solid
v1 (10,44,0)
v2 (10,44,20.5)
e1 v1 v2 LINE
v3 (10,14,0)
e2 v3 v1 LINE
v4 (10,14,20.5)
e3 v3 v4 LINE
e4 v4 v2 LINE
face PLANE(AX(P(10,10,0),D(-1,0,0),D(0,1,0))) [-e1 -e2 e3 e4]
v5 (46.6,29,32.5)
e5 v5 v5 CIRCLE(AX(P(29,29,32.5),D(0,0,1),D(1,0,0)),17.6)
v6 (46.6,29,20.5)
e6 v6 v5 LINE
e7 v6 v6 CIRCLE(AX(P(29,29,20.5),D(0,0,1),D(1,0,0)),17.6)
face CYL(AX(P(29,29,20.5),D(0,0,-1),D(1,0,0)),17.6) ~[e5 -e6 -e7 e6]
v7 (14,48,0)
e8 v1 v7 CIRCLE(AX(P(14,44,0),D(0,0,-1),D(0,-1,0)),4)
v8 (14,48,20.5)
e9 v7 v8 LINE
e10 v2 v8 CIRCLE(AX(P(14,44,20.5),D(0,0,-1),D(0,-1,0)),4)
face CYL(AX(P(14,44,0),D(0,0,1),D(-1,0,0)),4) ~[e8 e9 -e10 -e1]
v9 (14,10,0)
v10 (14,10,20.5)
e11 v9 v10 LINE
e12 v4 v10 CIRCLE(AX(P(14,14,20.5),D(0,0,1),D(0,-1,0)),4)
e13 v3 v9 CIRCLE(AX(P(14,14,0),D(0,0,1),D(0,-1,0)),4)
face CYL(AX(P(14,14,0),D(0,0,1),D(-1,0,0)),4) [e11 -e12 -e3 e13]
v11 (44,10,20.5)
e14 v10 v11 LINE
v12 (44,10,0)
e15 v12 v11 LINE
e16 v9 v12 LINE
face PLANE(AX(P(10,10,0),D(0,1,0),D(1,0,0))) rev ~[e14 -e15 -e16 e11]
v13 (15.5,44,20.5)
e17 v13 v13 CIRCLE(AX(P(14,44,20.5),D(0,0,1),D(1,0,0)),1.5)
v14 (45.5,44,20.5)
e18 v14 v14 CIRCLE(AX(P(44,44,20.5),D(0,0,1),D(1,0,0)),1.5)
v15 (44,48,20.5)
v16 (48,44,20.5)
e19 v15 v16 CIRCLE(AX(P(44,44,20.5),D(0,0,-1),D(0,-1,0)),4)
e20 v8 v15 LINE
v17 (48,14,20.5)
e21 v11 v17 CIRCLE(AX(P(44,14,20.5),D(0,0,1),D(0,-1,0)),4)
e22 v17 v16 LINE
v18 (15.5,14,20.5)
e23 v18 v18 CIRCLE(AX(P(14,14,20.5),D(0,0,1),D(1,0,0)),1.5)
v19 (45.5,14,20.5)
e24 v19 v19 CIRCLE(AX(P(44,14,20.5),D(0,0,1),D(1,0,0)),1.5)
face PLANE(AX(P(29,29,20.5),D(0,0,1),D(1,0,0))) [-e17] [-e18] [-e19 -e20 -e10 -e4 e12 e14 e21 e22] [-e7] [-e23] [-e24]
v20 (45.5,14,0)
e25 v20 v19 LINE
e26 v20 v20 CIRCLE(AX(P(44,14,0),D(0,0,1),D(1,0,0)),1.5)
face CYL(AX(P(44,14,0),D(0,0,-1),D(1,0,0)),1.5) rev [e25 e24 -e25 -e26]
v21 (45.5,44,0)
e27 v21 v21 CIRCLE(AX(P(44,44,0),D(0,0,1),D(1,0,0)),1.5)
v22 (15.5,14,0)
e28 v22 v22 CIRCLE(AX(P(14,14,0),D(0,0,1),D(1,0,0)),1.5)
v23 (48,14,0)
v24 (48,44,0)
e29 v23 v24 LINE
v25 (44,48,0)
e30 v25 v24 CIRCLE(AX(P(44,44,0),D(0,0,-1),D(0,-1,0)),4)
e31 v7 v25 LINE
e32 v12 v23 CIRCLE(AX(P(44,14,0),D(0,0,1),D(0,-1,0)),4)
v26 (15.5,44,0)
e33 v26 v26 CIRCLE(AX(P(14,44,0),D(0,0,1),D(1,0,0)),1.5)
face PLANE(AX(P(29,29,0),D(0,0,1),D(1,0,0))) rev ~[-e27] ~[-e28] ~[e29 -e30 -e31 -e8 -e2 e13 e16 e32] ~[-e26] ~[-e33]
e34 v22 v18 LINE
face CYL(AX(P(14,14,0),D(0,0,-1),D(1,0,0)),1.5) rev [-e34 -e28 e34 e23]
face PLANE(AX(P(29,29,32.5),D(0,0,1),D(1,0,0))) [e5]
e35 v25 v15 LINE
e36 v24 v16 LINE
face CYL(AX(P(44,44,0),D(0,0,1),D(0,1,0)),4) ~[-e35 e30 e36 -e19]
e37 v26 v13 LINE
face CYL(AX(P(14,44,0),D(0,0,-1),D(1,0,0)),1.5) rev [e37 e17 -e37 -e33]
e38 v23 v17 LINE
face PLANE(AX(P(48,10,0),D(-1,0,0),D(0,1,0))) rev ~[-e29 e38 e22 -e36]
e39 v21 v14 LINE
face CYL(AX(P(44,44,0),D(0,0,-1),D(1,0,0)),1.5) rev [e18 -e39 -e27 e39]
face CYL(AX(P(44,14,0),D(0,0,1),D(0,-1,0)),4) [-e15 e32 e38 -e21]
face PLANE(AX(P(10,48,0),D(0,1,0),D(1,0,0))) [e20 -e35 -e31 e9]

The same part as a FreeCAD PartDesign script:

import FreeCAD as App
import Part
import Sketcher
from FreeCAD import Vector
Q = App.Units.Quantity


def edges_at(feature, points):
    """Names of the edges that pass closest to the given points."""
    edges = feature.Shape.Edges
    near = lambda p: min(range(len(edges)), key=lambda i: edges[i].distToShape(Part.Vertex(*p))[0])
    return sorted({f"Edge{near(p) + 1}" for p in points})

doc = App.newDocument("Part")
body = doc.addObject("PartDesign::Body", "Body")

# Sketch on XY plane
sketch1 = body.newObject("Sketcher::SketchObject", "Sketch")
sketch1.AttachmentSupport = (doc.getObject("XY_Plane"), [""])
sketch1.MapMode = "FlatFace"
sketch1.addGeometry([
    Part.LineSegment(Vector(10, 48, 0), Vector(10, 10, 0)),  # 0
    Part.LineSegment(Vector(10, 10, 0), Vector(48, 10, 0)),  # 1
    Part.LineSegment(Vector(48, 10, 0), Vector(48, 48, 0)),  # 2
    Part.LineSegment(Vector(48, 48, 0), Vector(10, 48, 0)),  # 3
    Part.Circle(Vector(14, 14, 0), Vector(0, 0, 1), 1.5),  # 4
    Part.Circle(Vector(44, 14, 0), Vector(0, 0, 1), 1.5),  # 5
    Part.Circle(Vector(14, 44, 0), Vector(0, 0, 1), 1.5),  # 6
    Part.Circle(Vector(44, 44, 0), Vector(0, 0, 1), 1.5),  # 7
], False)
sketch1.addConstraint([
    Sketcher.Constraint("Coincident", 0, 2, 1, 1),
    Sketcher.Constraint("Coincident", 1, 2, 2, 1),
    Sketcher.Constraint("Coincident", 2, 2, 3, 1),
    Sketcher.Constraint("Coincident", 3, 2, 0, 1),
    Sketcher.Constraint("Vertical", 0),
    Sketcher.Constraint("Horizontal", 1),
    Sketcher.Constraint("Vertical", 2),
    Sketcher.Constraint("Horizontal", 3),
    Sketcher.Constraint("Equal", 4, 5),
    Sketcher.Constraint("Equal", 5, 6),
    Sketcher.Constraint("Equal", 6, 7),
    Sketcher.Constraint("Horizontal", 4, 3, 5, 3),
    Sketcher.Constraint("Horizontal", 6, 3, 7, 3),
    Sketcher.Constraint("Vertical", 4, 3, 6, 3),
    Sketcher.Constraint("Vertical", 5, 3, 7, 3),
    Sketcher.Constraint("Equal", 3, 0),
    Sketcher.Constraint("Diameter", 4, Q("3 mm")),
    Sketcher.Constraint("DistanceX", 1, 1, 1, 2, Q("38 mm")),
    Sketcher.Constraint("DistanceX", -1, 1, 4, 3, Q("14 mm")),
    Sketcher.Constraint("DistanceY", -1, 1, 4, 3, Q("14 mm")),
    Sketcher.Constraint("DistanceX", -1, 1, 5, 3, Q("44 mm")),
    Sketcher.Constraint("DistanceY", -1, 1, 6, 3, Q("44 mm")),
    Sketcher.Constraint("DistanceX", -1, 1, 0, 2, Q("10 mm")),
    Sketcher.Constraint("DistanceY", -1, 1, 0, 2, Q("10 mm")),
])
pad1 = body.newObject("PartDesign::Pad", "Pad")
pad1.Profile = sketch1
pad1.Length = 20.5

# Sketch on XY plane
sketch2 = body.newObject("Sketcher::SketchObject", "Sketch001")
sketch2.AttachmentSupport = (doc.getObject("XY_Plane"), [""])
sketch2.MapMode = "FlatFace"
sketch2.AttachmentOffset = App.Placement(Vector(0, 0, 20.5), App.Rotation())
sketch2.addGeometry(Part.Circle(Vector(29, 29, 0), Vector(0, 0, 1), 18), False)
sketch2.addConstraint([
    Sketcher.Constraint("Diameter", 0, Q("35.2 mm")),
    Sketcher.Constraint("DistanceX", -1, 1, 0, 3, Q("29 mm")),
    Sketcher.Constraint("DistanceY", -1, 1, 0, 3, Q("29 mm")),
])
pad2 = body.newObject("PartDesign::Pad", "Pad001")
pad2.Profile = sketch2
pad2.Length = 12
doc.recompute()

fillet = body.newObject("PartDesign::Fillet", "Fillet")
fillet.Base = (pad2, edges_at(pad2, [
    (48, 10, 10.25),
    (48, 48, 10.25),
    (10, 48, 10.25),
    (10, 10, 10.25),
]))
fillet.Radius = 4

doc.recompute()
